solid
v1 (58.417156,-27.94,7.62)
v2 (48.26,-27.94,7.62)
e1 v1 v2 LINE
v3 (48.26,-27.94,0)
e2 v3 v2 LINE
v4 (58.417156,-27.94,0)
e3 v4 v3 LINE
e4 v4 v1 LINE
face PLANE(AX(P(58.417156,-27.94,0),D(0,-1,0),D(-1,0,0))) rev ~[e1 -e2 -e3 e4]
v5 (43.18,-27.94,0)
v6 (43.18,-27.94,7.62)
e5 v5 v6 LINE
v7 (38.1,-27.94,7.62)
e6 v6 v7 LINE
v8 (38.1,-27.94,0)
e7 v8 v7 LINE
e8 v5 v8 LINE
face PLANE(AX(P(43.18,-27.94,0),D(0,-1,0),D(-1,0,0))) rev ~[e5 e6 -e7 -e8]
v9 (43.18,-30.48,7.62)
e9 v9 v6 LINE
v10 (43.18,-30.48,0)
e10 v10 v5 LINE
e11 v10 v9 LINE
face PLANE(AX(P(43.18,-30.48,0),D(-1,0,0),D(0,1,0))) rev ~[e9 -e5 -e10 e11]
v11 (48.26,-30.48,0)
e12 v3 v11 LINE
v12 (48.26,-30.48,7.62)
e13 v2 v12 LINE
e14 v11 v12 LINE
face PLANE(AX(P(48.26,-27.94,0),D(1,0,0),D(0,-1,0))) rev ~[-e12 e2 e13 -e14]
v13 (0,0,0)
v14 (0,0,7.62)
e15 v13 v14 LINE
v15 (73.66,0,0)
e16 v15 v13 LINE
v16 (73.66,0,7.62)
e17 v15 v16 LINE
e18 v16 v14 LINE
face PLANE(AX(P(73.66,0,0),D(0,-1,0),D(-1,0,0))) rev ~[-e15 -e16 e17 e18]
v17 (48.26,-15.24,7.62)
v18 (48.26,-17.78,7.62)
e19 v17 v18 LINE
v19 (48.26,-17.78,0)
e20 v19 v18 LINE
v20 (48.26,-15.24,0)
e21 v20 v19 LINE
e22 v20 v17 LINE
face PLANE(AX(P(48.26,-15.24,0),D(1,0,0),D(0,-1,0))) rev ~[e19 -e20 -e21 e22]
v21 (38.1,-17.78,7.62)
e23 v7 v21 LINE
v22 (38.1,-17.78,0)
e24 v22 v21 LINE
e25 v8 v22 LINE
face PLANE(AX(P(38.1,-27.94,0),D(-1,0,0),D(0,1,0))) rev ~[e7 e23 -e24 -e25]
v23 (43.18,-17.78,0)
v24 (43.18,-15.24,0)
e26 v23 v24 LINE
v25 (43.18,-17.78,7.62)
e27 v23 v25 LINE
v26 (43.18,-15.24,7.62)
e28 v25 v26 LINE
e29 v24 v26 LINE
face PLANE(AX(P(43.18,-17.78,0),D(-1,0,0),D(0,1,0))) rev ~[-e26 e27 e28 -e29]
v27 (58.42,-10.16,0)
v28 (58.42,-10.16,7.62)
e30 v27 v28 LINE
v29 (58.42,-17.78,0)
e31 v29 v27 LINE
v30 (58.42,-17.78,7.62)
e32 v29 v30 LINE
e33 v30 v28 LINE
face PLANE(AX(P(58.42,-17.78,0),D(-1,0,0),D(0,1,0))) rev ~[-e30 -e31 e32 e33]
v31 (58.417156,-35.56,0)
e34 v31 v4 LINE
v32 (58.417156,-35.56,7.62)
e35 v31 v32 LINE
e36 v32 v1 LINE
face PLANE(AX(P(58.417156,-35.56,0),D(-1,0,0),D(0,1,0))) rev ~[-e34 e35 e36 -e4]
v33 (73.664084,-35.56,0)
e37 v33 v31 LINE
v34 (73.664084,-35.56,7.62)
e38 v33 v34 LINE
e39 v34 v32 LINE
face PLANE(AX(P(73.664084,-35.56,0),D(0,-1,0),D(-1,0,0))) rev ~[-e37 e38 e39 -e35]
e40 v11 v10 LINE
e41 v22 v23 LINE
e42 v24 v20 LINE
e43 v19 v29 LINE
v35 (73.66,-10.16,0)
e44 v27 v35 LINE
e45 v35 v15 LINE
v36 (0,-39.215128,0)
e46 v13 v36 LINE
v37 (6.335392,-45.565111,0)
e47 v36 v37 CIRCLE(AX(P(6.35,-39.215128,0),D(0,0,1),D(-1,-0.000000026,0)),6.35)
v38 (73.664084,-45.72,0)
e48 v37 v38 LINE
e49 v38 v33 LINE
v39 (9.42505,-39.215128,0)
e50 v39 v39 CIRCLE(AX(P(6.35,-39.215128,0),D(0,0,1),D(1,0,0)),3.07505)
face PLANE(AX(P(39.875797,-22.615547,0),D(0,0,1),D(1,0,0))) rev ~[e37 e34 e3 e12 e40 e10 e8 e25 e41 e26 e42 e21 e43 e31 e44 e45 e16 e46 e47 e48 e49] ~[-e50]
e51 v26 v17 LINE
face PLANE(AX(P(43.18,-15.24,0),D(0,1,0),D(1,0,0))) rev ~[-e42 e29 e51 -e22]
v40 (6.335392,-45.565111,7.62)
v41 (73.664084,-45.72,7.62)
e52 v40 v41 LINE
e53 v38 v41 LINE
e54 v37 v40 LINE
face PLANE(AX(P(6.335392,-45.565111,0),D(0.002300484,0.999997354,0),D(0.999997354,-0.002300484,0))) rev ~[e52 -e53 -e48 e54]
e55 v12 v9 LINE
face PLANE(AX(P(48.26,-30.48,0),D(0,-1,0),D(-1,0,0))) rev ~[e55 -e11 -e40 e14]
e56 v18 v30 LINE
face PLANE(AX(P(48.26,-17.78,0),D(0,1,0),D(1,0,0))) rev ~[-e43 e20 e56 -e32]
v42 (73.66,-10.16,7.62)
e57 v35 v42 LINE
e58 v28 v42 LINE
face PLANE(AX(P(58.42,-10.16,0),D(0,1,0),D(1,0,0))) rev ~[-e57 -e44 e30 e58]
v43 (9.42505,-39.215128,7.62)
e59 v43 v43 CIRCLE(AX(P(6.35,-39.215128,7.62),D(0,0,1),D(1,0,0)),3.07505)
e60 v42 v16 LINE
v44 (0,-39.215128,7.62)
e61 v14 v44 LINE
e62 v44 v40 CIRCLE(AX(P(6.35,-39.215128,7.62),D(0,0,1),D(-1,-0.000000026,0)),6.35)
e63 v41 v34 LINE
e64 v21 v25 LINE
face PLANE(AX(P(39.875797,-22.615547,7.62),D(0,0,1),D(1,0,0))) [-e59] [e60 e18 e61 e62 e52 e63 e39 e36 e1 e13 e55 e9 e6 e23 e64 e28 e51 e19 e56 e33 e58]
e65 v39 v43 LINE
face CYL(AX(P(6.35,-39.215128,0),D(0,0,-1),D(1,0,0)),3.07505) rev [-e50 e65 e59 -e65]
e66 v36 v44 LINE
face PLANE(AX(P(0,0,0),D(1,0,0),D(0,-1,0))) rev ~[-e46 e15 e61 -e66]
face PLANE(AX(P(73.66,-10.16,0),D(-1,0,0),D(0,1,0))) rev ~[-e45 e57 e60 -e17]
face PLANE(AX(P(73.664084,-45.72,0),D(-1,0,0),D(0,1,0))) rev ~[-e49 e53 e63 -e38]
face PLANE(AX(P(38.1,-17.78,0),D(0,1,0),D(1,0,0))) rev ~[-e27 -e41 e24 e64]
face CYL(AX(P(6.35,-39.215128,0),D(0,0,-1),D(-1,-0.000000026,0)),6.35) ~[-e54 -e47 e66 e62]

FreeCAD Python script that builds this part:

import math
import FreeCAD as App
import Part
import Sketcher
from FreeCAD import Vector
Q = App.Units.Quantity

doc = App.newDocument("Part")
body = doc.addObject("PartDesign::Body", "Body")

sketch1 = body.newObject("Sketcher::SketchObject", "Sketch")
sketch1.AttachmentSupport = (doc.getObject("XY_Plane"), [""])
sketch1.MapMode = "FlatFace"
sketch1.addGeometry(Part.LineSegment(Vector(73.66, 0, 0), Vector(0, 0, 0)), False)
sketch1.addGeometry(Part.LineSegment(Vector(0, 0, 0), Vector(0, -39.215128, 0)), False)
sketch1.addGeometry(Part.ArcOfCircle(Part.Circle(Vector(6.35, -39.215128, 0), Vector(0, 0, 1), 6.35), math.radians(-179.999998), math.radians(-90.131807)), False)
sketch1.addGeometry(Part.LineSegment(Vector(6.335392, -45.565111, 0), Vector(73.664084, -45.72, 0)), False)
sketch1.addGeometry(Part.LineSegment(Vector(73.664084, -45.72, 0), Vector(73.664084, -35.56, 0)), False)
sketch1.addGeometry(Part.LineSegment(Vector(73.664084, -35.56, 0), Vector(58.417156, -35.56, 0)), False)
sketch1.addGeometry(Part.LineSegment(Vector(58.417156, -35.56, 0), Vector(58.417156, -27.94, 0)), False)
sketch1.addGeometry(Part.LineSegment(Vector(58.417156, -27.94, 0), Vector(48.26, -27.94, 0)), False)
sketch1.addGeometry(Part.LineSegment(Vector(48.26, -27.94, 0), Vector(48.26, -30.48, 0)), False)
sketch1.addGeometry(Part.LineSegment(Vector(48.26, -30.48, 0), Vector(43.18, -30.48, 0)), False)
sketch1.addGeometry(Part.LineSegment(Vector(43.18, -30.48, 0), Vector(43.18, -27.94, 0)), False)
sketch1.addGeometry(Part.LineSegment(Vector(43.18, -27.94, 0), Vector(38.1, -27.94, 0)), False)
sketch1.addGeometry(Part.LineSegment(Vector(38.1, -27.94, 0), Vector(38.1, -17.78, 0)), False)
sketch1.addGeometry(Part.LineSegment(Vector(38.1, -17.78, 0), Vector(43.18, -17.78, 0)), False)
sketch1.addGeometry(Part.LineSegment(Vector(43.18, -17.78, 0), Vector(43.18, -15.24, 0)), False)
sketch1.addGeometry(Part.LineSegment(Vector(43.18, -15.24, 0), Vector(48.26, -15.24, 0)), False)
sketch1.addGeometry(Part.LineSegment(Vector(48.26, -15.24, 0), Vector(48.26, -17.78, 0)), False)
sketch1.addGeometry(Part.LineSegment(Vector(48.26, -17.78, 0), Vector(58.42, -17.78, 0)), False)
sketch1.addGeometry(Part.LineSegment(Vector(58.42, -17.78, 0), Vector(58.42, -10.16, 0)), False)
sketch1.addGeometry(Part.LineSegment(Vector(58.42, -10.16, 0), Vector(73.66, -10.16, 0)), False)
sketch1.addGeometry(Part.LineSegment(Vector(73.66, -10.16, 0), Vector(73.66, 0, 0)), False)
sketch1.addGeometry(Part.Circle(Vector(6.35, -39.215128, 0), Vector(0, 0, 1), 3.07505), False)
sketch1.addConstraint(Sketcher.Constraint("Coincident", 0, 2, 1, 1))
sketch1.addConstraint(Sketcher.Constraint("Tangent", 1, 2, 2, 1))
sketch1.addConstraint(Sketcher.Constraint("Tangent", 2, 2, 3, 1))
sketch1.addConstraint(Sketcher.Constraint("Coincident", 3, 2, 4, 1))
sketch1.addConstraint(Sketcher.Constraint("Coincident", 4, 2, 5, 1))
sketch1.addConstraint(Sketcher.Constraint("Coincident", 5, 2, 6, 1))
sketch1.addConstraint(Sketcher.Constraint("Coincident", 6, 2, 7, 1))
sketch1.addConstraint(Sketcher.Constraint("Coincident", 7, 2, 8, 1))
sketch1.addConstraint(Sketcher.Constraint("Coincident", 8, 2, 9, 1))
sketch1.addConstraint(Sketcher.Constraint("Coincident", 9, 2, 10, 1))
sketch1.addConstraint(Sketcher.Constraint("Coincident", 10, 2, 11, 1))
sketch1.addConstraint(Sketcher.Constraint("Coincident", 11, 2, 12, 1))
sketch1.addConstraint(Sketcher.Constraint("Coincident", 12, 2, 13, 1))
sketch1.addConstraint(Sketcher.Constraint("Coincident", 13, 2, 14, 1))
sketch1.addConstraint(Sketcher.Constraint("Coincident", 14, 2, 15, 1))
sketch1.addConstraint(Sketcher.Constraint("Coincident", 15, 2, 16, 1))
sketch1.addConstraint(Sketcher.Constraint("Coincident", 16, 2, 17, 1))
sketch1.addConstraint(Sketcher.Constraint("Coincident", 17, 2, 18, 1))
sketch1.addConstraint(Sketcher.Constraint("Coincident", 18, 2, 19, 1))
sketch1.addConstraint(Sketcher.Constraint("Coincident", 19, 2, 20, 1))
sketch1.addConstraint(Sketcher.Constraint("Coincident", 20, 2, 0, 1))
sketch1.addConstraint(Sketcher.Constraint("Horizontal", 0))
sketch1.addConstraint(Sketcher.Constraint("Vertical", 1))
sketch1.addConstraint(Sketcher.Constraint("Vertical", 4))
sketch1.addConstraint(Sketcher.Constraint("Horizontal", 5))
sketch1.addConstraint(Sketcher.Constraint("Vertical", 6))
sketch1.addConstraint(Sketcher.Constraint("Horizontal", 7))
sketch1.addConstraint(Sketcher.Constraint("Vertical", 8))
sketch1.addConstraint(Sketcher.Constraint("Horizontal", 9))
sketch1.addConstraint(Sketcher.Constraint("Vertical", 10))
sketch1.addConstraint(Sketcher.Constraint("Horizontal", 11))
sketch1.addConstraint(Sketcher.Constraint("Vertical", 12))
sketch1.addConstraint(Sketcher.Constraint("Horizontal", 13))
sketch1.addConstraint(Sketcher.Constraint("Vertical", 14))
sketch1.addConstraint(Sketcher.Constraint("Horizontal", 15))
sketch1.addConstraint(Sketcher.Constraint("Vertical", 16))
sketch1.addConstraint(Sketcher.Constraint("Horizontal", 17))
sketch1.addConstraint(Sketcher.Constraint("Vertical", 18))
sketch1.addConstraint(Sketcher.Constraint("Horizontal", 19))
sketch1.addConstraint(Sketcher.Constraint("Vertical", 20))
sketch1.addConstraint(Sketcher.Constraint("Coincident", 0, 2, -1, 1))
sketch1.addConstraint(Sketcher.Constraint("Coincident", 21, 3, 2, 3))
sketch1.addConstraint(Sketcher.Constraint("Horizontal", 7, 2, 10, 2))
sketch1.addConstraint(Sketcher.Constraint("Horizontal", 13, 2, 16, 2))
sketch1.addConstraint(Sketcher.Constraint("Vertical", 10, 2, 13, 2))
sketch1.addConstraint(Sketcher.Constraint("Vertical", 8, 2, 15, 2))
sketch1.addConstraint(Sketcher.Constraint("Equal", 9, 11))
sketch1.addConstraint(Sketcher.Constraint("Equal", 17, 4))
sketch1.addConstraint(Sketcher.Constraint("Equal", 4, 12))
sketch1.addConstraint(Sketcher.Constraint("Equal", 10, 14))
sketch1.addConstraint(Sketcher.Constraint("Equal", 6, 18))
sketch1.addConstraint(Sketcher.Constraint("Equal", 12, 20))
sketch1.addConstraint(Sketcher.Constraint("Radius", 2, Q("0.25 in")))
sketch1.addConstraint(Sketcher.Constraint("DistanceX", 0, 2, 0, 1, Q("2.9 in")))
sketch1.addConstraint(Sketcher.Constraint("DistanceX", 9, 2, 9, 1, Q("0.2 in")))
sketch1.addConstraint(Sketcher.Constraint("DistanceX", 17, 1, 17, 2, Q("0.4 in")))
sketch1.addConstraint(Sketcher.Constraint("DistanceX", 19, 1, 19, 2, Q("0.6 in")))
sketch1.addConstraint(Sketcher.Constraint("DistanceY", 6, 1, 6, 2, Q("0.3 in")))
sketch1.addConstraint(Sketcher.Constraint("DistanceY", 8, 2, 8, 1, Q("0.1 in")))
sketch1.addConstraint(Sketcher.Constraint("Diameter", 21, 6.1501))
sketch1.addConstraint(Sketcher.Constraint("DistanceX", 5, 2, 5, 1, 15.246928))
sketch1.addConstraint(Sketcher.Constraint("Distance", 3, 67.32887))
sketch1.addConstraint(Sketcher.Constraint("DistanceX", 7, 2, 7, 1, 10.157156))
pad1 = body.newObject("PartDesign::Pad", "Pad")
pad1.Profile = sketch1
pad1.Length = Q("0.3 in")

doc.recompute()
